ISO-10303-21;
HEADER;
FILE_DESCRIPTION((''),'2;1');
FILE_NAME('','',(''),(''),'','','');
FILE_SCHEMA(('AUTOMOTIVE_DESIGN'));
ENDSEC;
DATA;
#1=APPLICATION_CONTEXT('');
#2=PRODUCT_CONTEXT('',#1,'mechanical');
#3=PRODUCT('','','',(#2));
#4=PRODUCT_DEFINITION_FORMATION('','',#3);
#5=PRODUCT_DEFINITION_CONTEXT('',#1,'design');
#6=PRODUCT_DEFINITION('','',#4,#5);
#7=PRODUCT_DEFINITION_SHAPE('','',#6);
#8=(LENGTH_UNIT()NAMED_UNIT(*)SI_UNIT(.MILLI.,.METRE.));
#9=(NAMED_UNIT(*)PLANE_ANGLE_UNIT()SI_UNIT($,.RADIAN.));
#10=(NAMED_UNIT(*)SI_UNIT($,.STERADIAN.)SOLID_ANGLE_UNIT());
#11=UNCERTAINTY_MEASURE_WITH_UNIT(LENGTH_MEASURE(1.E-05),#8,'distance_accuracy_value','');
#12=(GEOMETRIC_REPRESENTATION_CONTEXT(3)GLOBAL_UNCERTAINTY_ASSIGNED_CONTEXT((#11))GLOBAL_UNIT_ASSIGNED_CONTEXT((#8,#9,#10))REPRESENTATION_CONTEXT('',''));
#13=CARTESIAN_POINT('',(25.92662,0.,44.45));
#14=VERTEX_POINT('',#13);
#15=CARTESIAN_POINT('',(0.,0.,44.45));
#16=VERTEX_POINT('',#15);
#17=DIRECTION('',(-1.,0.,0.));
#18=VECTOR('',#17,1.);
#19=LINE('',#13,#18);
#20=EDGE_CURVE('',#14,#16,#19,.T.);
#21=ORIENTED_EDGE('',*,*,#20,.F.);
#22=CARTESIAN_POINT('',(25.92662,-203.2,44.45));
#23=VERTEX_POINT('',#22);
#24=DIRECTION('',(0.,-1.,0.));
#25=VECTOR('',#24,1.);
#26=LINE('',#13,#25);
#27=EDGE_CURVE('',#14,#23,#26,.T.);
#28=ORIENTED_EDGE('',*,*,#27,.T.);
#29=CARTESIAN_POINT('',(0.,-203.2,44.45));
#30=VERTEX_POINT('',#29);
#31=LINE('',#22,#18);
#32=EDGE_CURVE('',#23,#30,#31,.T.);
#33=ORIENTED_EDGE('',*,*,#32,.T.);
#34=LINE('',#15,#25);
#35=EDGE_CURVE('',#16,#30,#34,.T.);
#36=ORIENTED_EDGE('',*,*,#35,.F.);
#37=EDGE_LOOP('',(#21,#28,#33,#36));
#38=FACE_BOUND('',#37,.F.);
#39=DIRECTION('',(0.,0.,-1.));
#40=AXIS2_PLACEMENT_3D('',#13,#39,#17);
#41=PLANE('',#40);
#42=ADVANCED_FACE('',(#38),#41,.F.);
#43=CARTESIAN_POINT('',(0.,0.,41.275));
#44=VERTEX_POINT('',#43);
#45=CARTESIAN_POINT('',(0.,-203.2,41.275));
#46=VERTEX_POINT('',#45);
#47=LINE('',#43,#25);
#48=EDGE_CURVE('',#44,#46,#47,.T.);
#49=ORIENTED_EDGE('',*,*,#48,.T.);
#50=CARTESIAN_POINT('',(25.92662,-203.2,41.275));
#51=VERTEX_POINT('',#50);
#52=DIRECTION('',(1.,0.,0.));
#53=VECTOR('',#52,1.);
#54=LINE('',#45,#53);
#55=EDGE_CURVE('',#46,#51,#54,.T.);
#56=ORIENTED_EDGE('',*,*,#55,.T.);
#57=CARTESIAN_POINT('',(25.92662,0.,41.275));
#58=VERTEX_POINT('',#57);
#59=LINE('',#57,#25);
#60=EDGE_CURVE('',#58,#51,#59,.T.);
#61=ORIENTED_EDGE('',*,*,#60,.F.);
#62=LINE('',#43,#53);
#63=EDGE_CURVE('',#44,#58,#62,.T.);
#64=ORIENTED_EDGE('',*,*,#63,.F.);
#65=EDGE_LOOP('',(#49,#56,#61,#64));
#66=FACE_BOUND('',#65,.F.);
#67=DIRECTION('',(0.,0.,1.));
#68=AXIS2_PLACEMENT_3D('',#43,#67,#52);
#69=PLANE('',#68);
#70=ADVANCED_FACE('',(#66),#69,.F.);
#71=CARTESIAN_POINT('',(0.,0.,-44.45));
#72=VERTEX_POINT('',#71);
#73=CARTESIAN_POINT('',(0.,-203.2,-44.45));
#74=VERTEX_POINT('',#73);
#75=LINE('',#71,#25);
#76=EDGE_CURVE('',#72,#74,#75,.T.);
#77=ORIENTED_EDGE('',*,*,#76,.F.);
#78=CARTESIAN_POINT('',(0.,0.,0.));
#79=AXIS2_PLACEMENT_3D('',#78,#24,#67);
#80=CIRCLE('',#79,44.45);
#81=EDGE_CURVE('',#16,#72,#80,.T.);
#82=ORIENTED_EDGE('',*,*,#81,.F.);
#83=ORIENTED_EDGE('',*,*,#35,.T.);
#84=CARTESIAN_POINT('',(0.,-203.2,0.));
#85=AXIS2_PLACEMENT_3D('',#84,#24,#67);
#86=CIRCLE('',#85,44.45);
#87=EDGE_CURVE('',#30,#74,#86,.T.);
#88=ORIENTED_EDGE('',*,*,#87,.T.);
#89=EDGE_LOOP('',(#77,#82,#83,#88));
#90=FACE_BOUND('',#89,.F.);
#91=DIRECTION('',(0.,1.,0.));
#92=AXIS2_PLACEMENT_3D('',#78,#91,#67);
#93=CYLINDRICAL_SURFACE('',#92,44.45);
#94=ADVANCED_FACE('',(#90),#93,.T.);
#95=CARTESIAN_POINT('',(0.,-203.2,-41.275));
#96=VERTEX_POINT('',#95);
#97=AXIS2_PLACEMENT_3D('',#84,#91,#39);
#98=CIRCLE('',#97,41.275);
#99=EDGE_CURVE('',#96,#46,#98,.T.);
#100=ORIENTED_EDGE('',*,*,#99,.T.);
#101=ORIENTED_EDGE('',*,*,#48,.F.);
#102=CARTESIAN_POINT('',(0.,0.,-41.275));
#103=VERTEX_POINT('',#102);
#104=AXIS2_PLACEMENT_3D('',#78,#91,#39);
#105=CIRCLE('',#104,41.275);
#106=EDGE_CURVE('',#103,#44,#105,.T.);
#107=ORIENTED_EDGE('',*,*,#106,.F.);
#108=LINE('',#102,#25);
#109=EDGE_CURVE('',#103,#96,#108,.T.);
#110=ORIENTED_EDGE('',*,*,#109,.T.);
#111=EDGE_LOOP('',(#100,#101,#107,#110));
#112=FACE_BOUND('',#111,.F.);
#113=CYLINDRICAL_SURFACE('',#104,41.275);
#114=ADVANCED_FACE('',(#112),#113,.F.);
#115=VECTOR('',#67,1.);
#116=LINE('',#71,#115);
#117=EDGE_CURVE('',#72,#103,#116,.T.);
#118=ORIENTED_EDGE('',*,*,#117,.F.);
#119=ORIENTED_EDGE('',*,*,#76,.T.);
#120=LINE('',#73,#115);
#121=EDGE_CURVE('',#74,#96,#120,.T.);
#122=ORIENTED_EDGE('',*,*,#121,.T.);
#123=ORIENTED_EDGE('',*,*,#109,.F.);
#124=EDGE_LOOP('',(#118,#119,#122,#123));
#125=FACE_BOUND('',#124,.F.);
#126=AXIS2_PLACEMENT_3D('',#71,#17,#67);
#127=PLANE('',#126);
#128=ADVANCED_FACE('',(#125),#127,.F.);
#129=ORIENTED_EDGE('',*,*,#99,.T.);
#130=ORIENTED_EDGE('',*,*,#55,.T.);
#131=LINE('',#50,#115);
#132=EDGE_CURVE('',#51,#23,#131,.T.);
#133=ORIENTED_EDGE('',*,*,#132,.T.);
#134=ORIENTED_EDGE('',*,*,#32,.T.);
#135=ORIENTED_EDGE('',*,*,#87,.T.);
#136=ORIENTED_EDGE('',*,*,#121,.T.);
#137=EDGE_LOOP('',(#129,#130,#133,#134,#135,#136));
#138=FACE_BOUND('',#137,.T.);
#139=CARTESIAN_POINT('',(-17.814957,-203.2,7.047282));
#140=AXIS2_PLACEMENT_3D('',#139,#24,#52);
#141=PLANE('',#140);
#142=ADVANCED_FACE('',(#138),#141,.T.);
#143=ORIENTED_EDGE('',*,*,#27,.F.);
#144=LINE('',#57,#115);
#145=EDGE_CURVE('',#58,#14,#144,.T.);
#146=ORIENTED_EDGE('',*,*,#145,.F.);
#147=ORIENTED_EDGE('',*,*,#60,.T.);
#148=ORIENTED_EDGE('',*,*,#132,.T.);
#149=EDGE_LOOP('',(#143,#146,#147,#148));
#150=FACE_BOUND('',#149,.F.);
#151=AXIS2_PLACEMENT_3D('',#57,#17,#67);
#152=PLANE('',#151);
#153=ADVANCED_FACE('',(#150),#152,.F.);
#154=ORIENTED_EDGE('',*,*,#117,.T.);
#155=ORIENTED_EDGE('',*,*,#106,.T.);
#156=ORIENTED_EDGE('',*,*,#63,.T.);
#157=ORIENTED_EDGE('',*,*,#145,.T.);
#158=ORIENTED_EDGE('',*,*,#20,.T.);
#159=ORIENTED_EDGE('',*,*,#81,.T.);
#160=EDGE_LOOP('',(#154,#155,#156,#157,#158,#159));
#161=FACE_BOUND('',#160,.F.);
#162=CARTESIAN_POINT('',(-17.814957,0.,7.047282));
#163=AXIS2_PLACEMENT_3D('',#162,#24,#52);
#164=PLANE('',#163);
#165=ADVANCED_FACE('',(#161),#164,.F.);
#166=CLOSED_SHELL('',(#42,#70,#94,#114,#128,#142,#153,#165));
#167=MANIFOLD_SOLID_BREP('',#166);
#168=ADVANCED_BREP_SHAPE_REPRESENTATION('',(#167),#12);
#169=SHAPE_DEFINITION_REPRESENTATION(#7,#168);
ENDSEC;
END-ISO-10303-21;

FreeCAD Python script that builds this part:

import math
import FreeCAD as App
import Part
import Sketcher
from FreeCAD import Vector
Q = App.Units.Quantity

doc = App.newDocument("Part")
body = doc.addObject("PartDesign::Body", "Body")

# Sketch on XZ plane
sketch1 = body.newObject("Sketcher::SketchObject", "Sketch")
sketch1.AttachmentSupport = (doc.getObject("XZ_Plane"), [""])
sketch1.MapMode = "FlatFace"
sketch1.addGeometry(Part.ArcOfCircle(Part.Circle(Vector(0, 0, 0), Vector(0, 0, 1), 41.3), math.radians(90), math.radians(270)), False)
sketch1.addGeometry(Part.LineSegment(Vector(0, 41.3, 0), Vector(25.9, 41.3, 0)), False)
sketch1.addGeometry(Part.LineSegment(Vector(25.9, 41.3, 0), Vector(25.9, 44.5, 0)), False)
sketch1.addGeometry(Part.LineSegment(Vector(25.9, 44.5, 0), Vector(0, 44.5, 0)), False)
sketch1.addGeometry(Part.ArcOfCircle(Part.Circle(Vector(0, 0, 0), Vector(0, 0, 1), 44.5), math.radians(90), math.radians(270)), False)
sketch1.addGeometry(Part.LineSegment(Vector(0, -44.5, 0), Vector(0, -41.3, 0)), False)
sketch1.addConstraint(Sketcher.Constraint("Tangent", 0, 1, 1, 1))
sketch1.addConstraint(Sketcher.Constraint("Coincident", 1, 2, 2, 1))
sketch1.addConstraint(Sketcher.Constraint("Coincident", 2, 2, 3, 1))
sketch1.addConstraint(Sketcher.Constraint("Tangent", 3, 2, 4, 1))
sketch1.addConstraint(Sketcher.Constraint("Coincident", 4, 2, 5, 1))
sketch1.addConstraint(Sketcher.Constraint("Coincident", 5, 2, 0, 2))
sketch1.addConstraint(Sketcher.Constraint("Horizontal", 1))
sketch1.addConstraint(Sketcher.Constraint("Vertical", 2))
sketch1.addConstraint(Sketcher.Constraint("Horizontal", 3))
sketch1.addConstraint(Sketcher.Constraint("Vertical", 5))
sketch1.addConstraint(Sketcher.Constraint("Coincident", 0, 3, -1, 1))
sketch1.addConstraint(Sketcher.Constraint("Coincident", 4, 3, -1, 1))
sketch1.addConstraint(Sketcher.Constraint("PointOnObject", 4, 2, -2))
sketch1.addConstraint(Sketcher.Constraint("Radius", 4, Q("1.75 in")))
sketch1.addConstraint(Sketcher.Constraint("Radius", 0, Q("1.625 in")))
sketch1.addConstraint(Sketcher.Constraint("DistanceX", 1, 1, 1, 2, Q("25.92662 mm")))
pad1 = body.newObject("PartDesign::Pad", "Pad")
pad1.Profile = sketch1
pad1.Length = Q("8 in")

doc.recompute()
